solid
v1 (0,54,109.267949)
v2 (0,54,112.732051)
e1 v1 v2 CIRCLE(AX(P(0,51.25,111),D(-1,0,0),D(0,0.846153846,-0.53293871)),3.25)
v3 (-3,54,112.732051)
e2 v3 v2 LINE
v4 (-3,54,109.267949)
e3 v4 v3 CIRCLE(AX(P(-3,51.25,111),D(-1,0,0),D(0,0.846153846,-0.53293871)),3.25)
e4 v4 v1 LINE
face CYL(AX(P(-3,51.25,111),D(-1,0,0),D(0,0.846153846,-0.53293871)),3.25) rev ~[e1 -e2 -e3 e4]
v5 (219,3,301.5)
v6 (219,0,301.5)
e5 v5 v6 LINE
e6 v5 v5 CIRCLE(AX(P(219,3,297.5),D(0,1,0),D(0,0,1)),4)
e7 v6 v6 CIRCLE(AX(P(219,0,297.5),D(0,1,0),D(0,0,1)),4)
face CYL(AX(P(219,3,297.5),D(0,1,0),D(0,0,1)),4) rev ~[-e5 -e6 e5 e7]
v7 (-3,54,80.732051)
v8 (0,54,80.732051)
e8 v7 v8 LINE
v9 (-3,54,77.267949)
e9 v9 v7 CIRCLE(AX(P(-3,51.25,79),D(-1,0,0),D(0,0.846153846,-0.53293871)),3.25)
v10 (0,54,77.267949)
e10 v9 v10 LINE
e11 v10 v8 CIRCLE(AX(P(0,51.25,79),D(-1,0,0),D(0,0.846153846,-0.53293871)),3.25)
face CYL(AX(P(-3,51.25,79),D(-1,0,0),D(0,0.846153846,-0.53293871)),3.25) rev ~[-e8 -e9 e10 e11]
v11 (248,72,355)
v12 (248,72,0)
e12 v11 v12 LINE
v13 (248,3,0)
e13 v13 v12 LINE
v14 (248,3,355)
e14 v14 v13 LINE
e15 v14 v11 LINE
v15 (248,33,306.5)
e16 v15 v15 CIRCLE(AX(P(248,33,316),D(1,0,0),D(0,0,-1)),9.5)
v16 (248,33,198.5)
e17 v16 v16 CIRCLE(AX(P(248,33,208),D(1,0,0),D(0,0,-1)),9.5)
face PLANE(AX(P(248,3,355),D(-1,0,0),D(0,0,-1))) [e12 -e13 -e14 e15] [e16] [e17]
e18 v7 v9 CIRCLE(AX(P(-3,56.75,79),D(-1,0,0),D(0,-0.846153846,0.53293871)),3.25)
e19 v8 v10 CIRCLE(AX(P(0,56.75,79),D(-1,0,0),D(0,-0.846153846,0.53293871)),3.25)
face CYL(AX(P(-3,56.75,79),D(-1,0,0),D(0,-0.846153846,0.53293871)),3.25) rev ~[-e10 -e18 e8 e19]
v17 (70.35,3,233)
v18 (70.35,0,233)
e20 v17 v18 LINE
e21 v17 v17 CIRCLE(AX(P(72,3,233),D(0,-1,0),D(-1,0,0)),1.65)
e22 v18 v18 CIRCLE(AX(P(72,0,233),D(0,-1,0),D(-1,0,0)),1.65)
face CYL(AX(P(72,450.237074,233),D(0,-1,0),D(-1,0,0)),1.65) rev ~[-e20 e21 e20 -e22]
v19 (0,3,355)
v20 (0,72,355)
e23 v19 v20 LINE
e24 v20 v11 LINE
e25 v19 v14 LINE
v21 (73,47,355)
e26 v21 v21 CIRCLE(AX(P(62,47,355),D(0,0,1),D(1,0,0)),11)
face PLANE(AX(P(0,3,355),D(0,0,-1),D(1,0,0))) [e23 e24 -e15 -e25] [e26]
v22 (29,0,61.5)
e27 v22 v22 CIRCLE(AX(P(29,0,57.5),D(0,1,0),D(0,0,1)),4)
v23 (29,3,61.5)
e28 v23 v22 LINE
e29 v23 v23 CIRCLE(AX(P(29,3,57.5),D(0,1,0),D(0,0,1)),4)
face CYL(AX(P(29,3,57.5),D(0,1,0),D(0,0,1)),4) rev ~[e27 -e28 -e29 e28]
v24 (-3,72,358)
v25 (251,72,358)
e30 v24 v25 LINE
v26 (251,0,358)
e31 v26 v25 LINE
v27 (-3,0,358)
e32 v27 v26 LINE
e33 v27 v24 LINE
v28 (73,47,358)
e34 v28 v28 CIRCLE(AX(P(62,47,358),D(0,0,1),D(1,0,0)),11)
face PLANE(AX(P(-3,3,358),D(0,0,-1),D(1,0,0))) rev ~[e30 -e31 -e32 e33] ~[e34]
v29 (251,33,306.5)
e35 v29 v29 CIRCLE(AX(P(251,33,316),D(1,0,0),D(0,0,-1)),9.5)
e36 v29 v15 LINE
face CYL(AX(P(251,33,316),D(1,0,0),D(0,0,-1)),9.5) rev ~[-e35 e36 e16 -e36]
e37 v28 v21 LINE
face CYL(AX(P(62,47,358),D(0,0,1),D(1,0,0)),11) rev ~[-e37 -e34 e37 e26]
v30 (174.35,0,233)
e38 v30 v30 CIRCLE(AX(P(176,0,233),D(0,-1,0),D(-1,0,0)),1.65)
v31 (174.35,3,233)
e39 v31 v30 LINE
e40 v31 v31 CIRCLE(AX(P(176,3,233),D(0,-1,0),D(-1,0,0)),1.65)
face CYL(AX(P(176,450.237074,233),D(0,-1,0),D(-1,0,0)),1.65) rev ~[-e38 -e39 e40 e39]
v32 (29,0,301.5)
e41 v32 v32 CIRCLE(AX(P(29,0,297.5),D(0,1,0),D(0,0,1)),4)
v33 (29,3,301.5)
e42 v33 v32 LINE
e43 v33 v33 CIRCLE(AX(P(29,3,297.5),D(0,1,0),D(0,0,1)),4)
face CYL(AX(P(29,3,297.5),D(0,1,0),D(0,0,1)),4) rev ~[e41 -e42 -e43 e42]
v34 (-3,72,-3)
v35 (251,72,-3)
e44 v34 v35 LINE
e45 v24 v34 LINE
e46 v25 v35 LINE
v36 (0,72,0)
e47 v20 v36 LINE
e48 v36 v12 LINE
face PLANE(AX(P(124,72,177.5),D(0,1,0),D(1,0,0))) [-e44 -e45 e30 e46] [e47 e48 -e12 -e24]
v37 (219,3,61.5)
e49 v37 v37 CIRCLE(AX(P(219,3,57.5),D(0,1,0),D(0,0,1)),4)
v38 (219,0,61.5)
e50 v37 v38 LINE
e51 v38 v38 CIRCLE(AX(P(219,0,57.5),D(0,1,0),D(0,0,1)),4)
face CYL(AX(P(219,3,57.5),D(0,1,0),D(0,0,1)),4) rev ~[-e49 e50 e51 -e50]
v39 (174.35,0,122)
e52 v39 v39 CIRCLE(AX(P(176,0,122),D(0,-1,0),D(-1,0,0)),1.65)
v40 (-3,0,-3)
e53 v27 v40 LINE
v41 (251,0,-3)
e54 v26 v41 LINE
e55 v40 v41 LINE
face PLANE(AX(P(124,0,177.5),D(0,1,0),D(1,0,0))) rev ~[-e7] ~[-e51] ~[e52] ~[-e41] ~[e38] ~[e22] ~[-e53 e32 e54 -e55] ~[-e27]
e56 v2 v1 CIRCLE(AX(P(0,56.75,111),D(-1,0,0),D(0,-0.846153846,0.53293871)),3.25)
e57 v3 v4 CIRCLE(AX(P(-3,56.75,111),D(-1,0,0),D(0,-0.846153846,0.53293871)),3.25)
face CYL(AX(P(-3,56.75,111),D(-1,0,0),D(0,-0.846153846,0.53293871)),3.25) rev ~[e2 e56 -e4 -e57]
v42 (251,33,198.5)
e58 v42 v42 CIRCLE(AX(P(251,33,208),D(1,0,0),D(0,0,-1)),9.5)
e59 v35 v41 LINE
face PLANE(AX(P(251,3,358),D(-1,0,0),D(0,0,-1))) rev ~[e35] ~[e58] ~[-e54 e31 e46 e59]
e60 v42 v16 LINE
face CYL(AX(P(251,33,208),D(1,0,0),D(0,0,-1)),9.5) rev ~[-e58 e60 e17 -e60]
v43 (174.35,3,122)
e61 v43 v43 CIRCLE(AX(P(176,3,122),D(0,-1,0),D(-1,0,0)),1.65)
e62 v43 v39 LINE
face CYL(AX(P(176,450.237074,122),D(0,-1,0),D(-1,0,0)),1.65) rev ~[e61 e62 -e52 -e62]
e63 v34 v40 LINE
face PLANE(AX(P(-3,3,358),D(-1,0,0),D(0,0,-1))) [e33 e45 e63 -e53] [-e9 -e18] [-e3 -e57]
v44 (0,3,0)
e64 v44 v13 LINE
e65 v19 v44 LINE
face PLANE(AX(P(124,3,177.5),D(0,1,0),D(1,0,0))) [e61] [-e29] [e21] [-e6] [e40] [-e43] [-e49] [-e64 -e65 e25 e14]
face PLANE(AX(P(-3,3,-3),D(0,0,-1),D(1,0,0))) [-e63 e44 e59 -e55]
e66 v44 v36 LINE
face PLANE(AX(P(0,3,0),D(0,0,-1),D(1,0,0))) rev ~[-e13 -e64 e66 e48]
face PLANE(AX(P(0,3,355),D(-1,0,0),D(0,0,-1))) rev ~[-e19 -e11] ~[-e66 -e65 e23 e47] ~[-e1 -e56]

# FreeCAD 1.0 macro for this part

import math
import FreeCAD as App
import Part
import Sketcher
Q = App.Units.Quantity

doc = App.newDocument("Part")
body = doc.addObject("PartDesign::Body", "Body")

# Sketch on XZ plane
sketch1 = body.newObject("Sketcher::SketchObject", "Sketch")
sketch1.AttachmentSupport = (doc.getObject("XZ_Plane"), [""])
sketch1.MapMode = "FlatFace"
sketch1.addGeometry(Part.LineSegment(App.Vector(-3, -3, 0), App.Vector(-3, 358, 0)), False)
sketch1.addGeometry(Part.LineSegment(App.Vector(-3, 358, 0), App.Vector(251, 358, 0)), False)
sketch1.addGeometry(Part.LineSegment(App.Vector(251, 358, 0), App.Vector(251, -3, 0)), False)
sketch1.addGeometry(Part.LineSegment(App.Vector(251, -3, 0), App.Vector(-3, -3, 0)), False)
sketch1.addConstraint(Sketcher.Constraint("Coincident", 0, 2, 1, 1))
sketch1.addConstraint(Sketcher.Constraint("Coincident", 1, 2, 2, 1))
sketch1.addConstraint(Sketcher.Constraint("Coincident", 2, 2, 3, 1))
sketch1.addConstraint(Sketcher.Constraint("Coincident", 3, 2, 0, 1))
sketch1.addConstraint(Sketcher.Constraint("Vertical", 0))
sketch1.addConstraint(Sketcher.Constraint("Horizontal", 1))
sketch1.addConstraint(Sketcher.Constraint("Vertical", 2))
sketch1.addConstraint(Sketcher.Constraint("Horizontal", 3))
sketch1.addConstraint(Sketcher.Constraint("DistanceX", 1, 1, 1, 2, Q("254 mm")))
sketch1.addConstraint(Sketcher.Constraint("DistanceY", 0, 1, 0, 2, Q("361 mm")))
sketch1.addConstraint(Sketcher.Constraint("DistanceX", 0, 2, -1, 1, Q("3 mm")))
sketch1.addConstraint(Sketcher.Constraint("DistanceY", -1, 1, 0, 2, Q("358 mm")))
pad1 = body.newObject("PartDesign::Pad", "Pad")
pad1.Profile = sketch1
pad1.Length = 3
pad1.Reversed = True

# Sketch on XZ plane
sketch2 = body.newObject("Sketcher::SketchObject", "Sketch001")
sketch2.AttachmentSupport = (doc.getObject("XZ_Plane"), [""])
sketch2.MapMode = "FlatFace"
sketch2.AttachmentOffset = App.Placement(App.Vector(0, 0, -3), App.Rotation())
sketch2.addGeometry(Part.LineSegment(App.Vector(-3, -3, 0), App.Vector(-3, 358, 0)), False)
sketch2.addGeometry(Part.LineSegment(App.Vector(-3, 358, 0), App.Vector(251, 358, 0)), False)
sketch2.addGeometry(Part.LineSegment(App.Vector(251, 358, 0), App.Vector(251, -3, 0)), False)
sketch2.addGeometry(Part.LineSegment(App.Vector(251, -3, 0), App.Vector(-3, -3, 0)), False)
sketch2.addGeometry(Part.LineSegment(App.Vector(248, 355, 0), App.Vector(0, 355, 0)), False)
sketch2.addGeometry(Part.LineSegment(App.Vector(0, 355, 0), App.Vector(0, 0, 0)), False)
sketch2.addGeometry(Part.LineSegment(App.Vector(0, 0, 0), App.Vector(248, 0, 0)), False)
sketch2.addGeometry(Part.LineSegment(App.Vector(248, 0, 0), App.Vector(248, 355, 0)), False)
sketch2.addConstraint(Sketcher.Constraint("Coincident", 0, 2, 1, 1))
sketch2.addConstraint(Sketcher.Constraint("Coincident", 1, 2, 2, 1))
sketch2.addConstraint(Sketcher.Constraint("Coincident", 2, 2, 3, 1))
sketch2.addConstraint(Sketcher.Constraint("Coincident", 3, 2, 0, 1))
sketch2.addConstraint(Sketcher.Constraint("Coincident", 4, 2, 5, 1))
sketch2.addConstraint(Sketcher.Constraint("Coincident", 5, 2, 6, 1))
sketch2.addConstraint(Sketcher.Constraint("Coincident", 6, 2, 7, 1))
sketch2.addConstraint(Sketcher.Constraint("Coincident", 7, 2, 4, 1))
sketch2.addConstraint(Sketcher.Constraint("Vertical", 0))
sketch2.addConstraint(Sketcher.Constraint("Horizontal", 1))
sketch2.addConstraint(Sketcher.Constraint("Vertical", 2))
sketch2.addConstraint(Sketcher.Constraint("Horizontal", 3))
sketch2.addConstraint(Sketcher.Constraint("Horizontal", 4))
sketch2.addConstraint(Sketcher.Constraint("Vertical", 5))
sketch2.addConstraint(Sketcher.Constraint("Horizontal", 6))
sketch2.addConstraint(Sketcher.Constraint("Vertical", 7))
sketch2.addConstraint(Sketcher.Constraint("Coincident", 5, 2, -1, 1))
sketch2.addConstraint(Sketcher.Constraint("DistanceX", 1, 1, 1, 2, Q("254 mm")))
sketch2.addConstraint(Sketcher.Constraint("DistanceX", 4, 2, 4, 1, Q("248 mm")))
sketch2.addConstraint(Sketcher.Constraint("DistanceY", 0, 1, 0, 2, Q("361 mm")))
sketch2.addConstraint(Sketcher.Constraint("DistanceY", 5, 2, 5, 1, Q("355 mm")))
sketch2.addConstraint(Sketcher.Constraint("DistanceX", 0, 2, -1, 1, Q("3 mm")))
sketch2.addConstraint(Sketcher.Constraint("DistanceY", -1, 1, 0, 2, Q("358 mm")))
pad2 = body.newObject("PartDesign::Pad", "Pad001")
pad2.Profile = sketch2
pad2.Length = 69
pad2.Reversed = True

# Sketch on YZ plane
sketch3 = body.newObject("Sketcher::SketchObject", "Sketch002")
sketch3.AttachmentSupport = (doc.getObject("YZ_Plane"), [""])
sketch3.MapMode = "FlatFace"
sketch3.AttachmentOffset = App.Placement(App.Vector(0, 0, 251), App.Rotation())
sketch3.addGeometry(Part.Circle(App.Vector(33, 316, 0), App.Vector(0, 0, 1), 9.5), False)
sketch3.addGeometry(Part.Circle(App.Vector(33, 208, 0), App.Vector(0, 0, 1), 9.5), False)
sketch3.addConstraint(Sketcher.Constraint("Equal", 0, 1))
sketch3.addConstraint(Sketcher.Constraint("Vertical", 0, 3, 1, 3))
sketch3.addConstraint(Sketcher.Constraint("Diameter", 0, Q("19 mm")))
sketch3.addConstraint(Sketcher.Constraint("DistanceX", -1, 1, 0, 3, Q("33 mm")))
sketch3.addConstraint(Sketcher.Constraint("DistanceY", -1, 1, 0, 3, Q("316 mm")))
sketch3.addConstraint(Sketcher.Constraint("DistanceY", -1, 1, 1, 3, Q("208 mm")))
pocket1 = body.newObject("PartDesign::Pocket", "Pocket")
pocket1.Profile = sketch3
pocket1.Length = 3

# Sketch on XY plane
sketch4 = body.newObject("Sketcher::SketchObject", "Sketch003")
sketch4.AttachmentSupport = (doc.getObject("XY_Plane"), [""])
sketch4.MapMode = "FlatFace"
sketch4.AttachmentOffset = App.Placement(App.Vector(0, 0, 358), App.Rotation())
sketch4.addGeometry(Part.Circle(App.Vector(62, 47, 0), App.Vector(0, 0, 1), 11), False)
sketch4.addConstraint(Sketcher.Constraint("Diameter", 0, Q("22 mm")))
sketch4.addConstraint(Sketcher.Constraint("DistanceX", -1, 1, 0, 3, Q("62 mm")))
sketch4.addConstraint(Sketcher.Constraint("DistanceY", -1, 1, 0, 3, Q("47 mm")))
pocket2 = body.newObject("PartDesign::Pocket", "Pocket001")
pocket2.Profile = sketch4
pocket2.Length = 3

# Sketch on YZ plane
sketch5 = body.newObject("Sketcher::SketchObject", "Sketch004")
sketch5.AttachmentSupport = (doc.getObject("YZ_Plane"), [""])
sketch5.MapMode = "FlatFace"
sketch5.AttachmentOffset = App.Placement(App.Vector(0, 0, -3), App.Rotation())
sketch5.addGeometry(Part.ArcOfCircle(Part.Circle(App.Vector(56.75, 79, 0), App.Vector(0, 0, 1), 3.25), math.radians(-147.795772), math.radians(147.795772)), False)
sketch5.addGeometry(Part.ArcOfCircle(Part.Circle(App.Vector(51.25, 79, 0), App.Vector(0, 0, 1), 3.25), math.radians(32.204228), math.radians(327.795772)), False)
sketch5.addGeometry(Part.ArcOfCircle(Part.Circle(App.Vector(51.25, 111, 0), App.Vector(0, 0, 1), 3.25), math.radians(32.204228), math.radians(327.795772)), False)
sketch5.addGeometry(Part.ArcOfCircle(Part.Circle(App.Vector(56.75, 111, 0), App.Vector(0, 0, 1), 3.25), math.radians(-147.795772), math.radians(147.795772)), False)
sketch5.addConstraint(Sketcher.Constraint("Coincident", 0, 1, 1, 2))
sketch5.addConstraint(Sketcher.Constraint("Coincident", 1, 1, 0, 2))
sketch5.addConstraint(Sketcher.Constraint("Coincident", 2, 1, 3, 2))
sketch5.addConstraint(Sketcher.Constraint("Coincident", 3, 1, 2, 2))
sketch5.addConstraint(Sketcher.Constraint("Equal", 0, 1))
sketch5.addConstraint(Sketcher.Constraint("Equal", 1, 2))
sketch5.addConstraint(Sketcher.Constraint("Equal", 2, 3))
sketch5.addConstraint(Sketcher.Constraint("Horizontal", 0, 3, 1, 3))
sketch5.addConstraint(Sketcher.Constraint("Horizontal", 2, 3, 3, 3))
sketch5.addConstraint(Sketcher.Constraint("Vertical", 1, 3, 2, 3))
sketch5.addConstraint(Sketcher.Constraint("Vertical", 0, 3, 3, 3))
sketch5.addConstraint(Sketcher.Constraint("Radius", 0, Q("3.25 mm")))
sketch5.addConstraint(Sketcher.Constraint("DistanceY", -1, 1, 0, 3, Q("79 mm")))
sketch5.addConstraint(Sketcher.Constraint("DistanceY", -1, 1, 2, 3, Q("111 mm")))
sketch5.addConstraint(Sketcher.Constraint("DistanceX", -1, 1, 0, 1, Q("54 mm")))
sketch5.addConstraint(Sketcher.Constraint("DistanceX", 1, 3, 0, 3, Q("5.5 mm")))
pocket3 = body.newObject("PartDesign::Pocket", "Pocket002")
pocket3.Profile = sketch5
pocket3.Length = 3
pocket3.Reversed = True

# Sketch on XZ plane
sketch6 = body.newObject("Sketcher::SketchObject", "Sketch005")
sketch6.AttachmentSupport = (doc.getObject("XZ_Plane"), [""])
sketch6.MapMode = "FlatFace"
sketch6.AttachmentOffset = App.Placement(App.Vector(0, 0, -3), App.Rotation())
sketch6.addGeometry(Part.Circle(App.Vector(29, 297.5, 0), App.Vector(0, 0, 1), 4), False)
sketch6.addGeometry(Part.Circle(App.Vector(219, 297.5, 0), App.Vector(0, 0, 1), 4), False)
sketch6.addGeometry(Part.Circle(App.Vector(29, 57.5, 0), App.Vector(0, 0, 1), 4), False)
sketch6.addGeometry(Part.Circle(App.Vector(219, 57.5, 0), App.Vector(0, 0, 1), 4), False)
sketch6.addConstraint(Sketcher.Constraint("Equal", 0, 1))
sketch6.addConstraint(Sketcher.Constraint("Equal", 1, 2))
sketch6.addConstraint(Sketcher.Constraint("Equal", 2, 3))
sketch6.addConstraint(Sketcher.Constraint("Horizontal", 0, 3, 1, 3))
sketch6.addConstraint(Sketcher.Constraint("Horizontal", 2, 3, 3, 3))
sketch6.addConstraint(Sketcher.Constraint("Vertical", 0, 3, 2, 3))
sketch6.addConstraint(Sketcher.Constraint("Vertical", 1, 3, 3, 3))
sketch6.addConstraint(Sketcher.Constraint("Diameter", 0, Q("8 mm")))
sketch6.addConstraint(Sketcher.Constraint("DistanceX", -1, 1, 0, 3, Q("29 mm")))
sketch6.addConstraint(Sketcher.Constraint("DistanceX", -1, 1, 1, 3, Q("219 mm")))
sketch6.addConstraint(Sketcher.Constraint("DistanceY", 2, 3, 0, 3, Q("240 mm")))
sketch6.addConstraint(Sketcher.Constraint("DistanceY", -1, 1, 0, 3, Q("297.5 mm")))
pocket4 = body.newObject("PartDesign::Pocket", "Pocket003")
pocket4.Profile = sketch6
pocket4.Length = 3
pocket4.Reversed = True

# Sketch on XZ plane
sketch7 = body.newObject("Sketcher::SketchObject", "Sketch006")
sketch7.AttachmentSupport = (doc.getObject("XZ_Plane"), [""])
sketch7.MapMode = "FlatFace"
sketch7.AttachmentOffset = App.Placement(App.Vector(0, 0, -3), App.Rotation())
sketch7.addGeometry(Part.Circle(App.Vector(72, 233, 0), App.Vector(0, 0, 1), 1.65), False)
sketch7.addGeometry(Part.Circle(App.Vector(176, 233, 0), App.Vector(0, 0, 1), 1.65), False)
sketch7.addGeometry(Part.Circle(App.Vector(176, 122, 0), App.Vector(0, 0, 1), 1.65), False)
sketch7.addConstraint(Sketcher.Constraint("Equal", 0, 1))
sketch7.addConstraint(Sketcher.Constraint("Equal", 1, 2))
sketch7.addConstraint(Sketcher.Constraint("Horizontal", 0, 3, 1, 3))
sketch7.addConstraint(Sketcher.Constraint("Vertical", 1, 3, 2, 3))
sketch7.addConstraint(Sketcher.Constraint("Diameter", 0, Q("3.3 mm")))
sketch7.addConstraint(Sketcher.Constraint("DistanceX", -1, 1, 0, 3, Q("72 mm")))
sketch7.addConstraint(Sketcher.Constraint("DistanceY", -1, 1, 0, 3, Q("233 mm")))
sketch7.addConstraint(Sketcher.Constraint("DistanceX", -1, 1, 1, 3, Q("176 mm")))
sketch7.addConstraint(Sketcher.Constraint("DistanceY", -1, 1, 2, 3, Q("122 mm")))
doc.recompute()
hole = body.newObject("PartDesign::Hole", "Hole")
hole.Profile = sketch7
hole.ThreadType = "None"
hole.Diameter = 3.3
hole.DepthType = "ThroughAll"
hole.Reversed = True

doc.recompute()
